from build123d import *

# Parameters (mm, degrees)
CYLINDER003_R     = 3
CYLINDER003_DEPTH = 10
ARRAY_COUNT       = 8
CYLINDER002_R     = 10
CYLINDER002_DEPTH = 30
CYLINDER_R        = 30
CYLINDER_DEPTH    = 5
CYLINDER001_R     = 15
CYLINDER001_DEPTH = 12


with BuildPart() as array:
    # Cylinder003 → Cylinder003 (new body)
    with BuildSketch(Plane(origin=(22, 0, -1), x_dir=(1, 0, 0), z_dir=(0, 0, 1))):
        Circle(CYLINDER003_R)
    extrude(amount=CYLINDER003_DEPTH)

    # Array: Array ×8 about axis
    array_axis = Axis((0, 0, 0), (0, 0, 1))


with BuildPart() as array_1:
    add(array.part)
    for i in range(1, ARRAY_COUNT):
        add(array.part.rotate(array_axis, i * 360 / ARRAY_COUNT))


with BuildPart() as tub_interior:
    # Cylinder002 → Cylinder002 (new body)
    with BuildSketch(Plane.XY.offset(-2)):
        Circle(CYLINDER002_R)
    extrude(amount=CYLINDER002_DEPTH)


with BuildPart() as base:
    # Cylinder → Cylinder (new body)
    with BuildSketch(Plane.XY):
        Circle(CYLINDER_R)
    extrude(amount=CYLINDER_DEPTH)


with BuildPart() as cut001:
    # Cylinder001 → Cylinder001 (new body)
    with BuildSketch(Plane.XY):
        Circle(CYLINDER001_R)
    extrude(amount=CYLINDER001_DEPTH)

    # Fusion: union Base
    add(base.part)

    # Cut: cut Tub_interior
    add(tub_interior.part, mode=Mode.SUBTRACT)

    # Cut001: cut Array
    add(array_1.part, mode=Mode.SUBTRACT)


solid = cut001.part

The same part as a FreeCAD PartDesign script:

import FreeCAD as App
import Part
import Sketcher
from FreeCAD import Vector

doc = App.newDocument("Part")
body = doc.addObject("PartDesign::Body", "Body")

# Sketch on XY plane
sketch1 = body.newObject("Sketcher::SketchObject", "Sketch")
sketch1.AttachmentSupport = (doc.getObject("XY_Plane"), [""])
sketch1.MapMode = "FlatFace"
sketch1.AttachmentOffset = App.Placement(Vector(0, 0, -1), App.Rotation())
sketch1.addGeometry(Part.Circle(Vector(22, 0, 0), Vector(0, 0, 1), 3), False)
sketch1.addConstraint([
    Sketcher.Constraint("PointOnObject", 0, 3, -1),
    Sketcher.Constraint("Diameter", 0, 6.0),
    Sketcher.Constraint("DistanceX", -1, 1, 0, 3, 22.0),
])
pad1 = body.newObject("PartDesign::Pad", "Pad")
pad1.Profile = sketch1
pad1.Length = 10
body2 = doc.addObject("PartDesign::Body", "Body001")
body2.AllowCompound = True
doc.recompute()

body2.BaseFeature = body
doc.recompute()

body3 = doc.addObject("PartDesign::Body", "Body002")
body3.BaseFeature = body
body3.Placement = App.Placement(Vector(0, 0, 0), App.Rotation(Vector(0, 0, 1), 45))
boolean = body2.newObject("PartDesign::Boolean", "Boolean")
boolean.Type = "Fuse"
boolean.addObjects([body3])
doc.recompute()

body4 = doc.addObject("PartDesign::Body", "Body003")
body4.BaseFeature = body
body4.Placement = App.Placement(Vector(0, 0, 0), App.Rotation(Vector(0, 0, 1), 90))
boolean2 = body2.newObject("PartDesign::Boolean", "Boolean001")
boolean2.Type = "Fuse"
boolean2.addObjects([body4])
doc.recompute()

body5 = doc.addObject("PartDesign::Body", "Body004")
body5.BaseFeature = body
body5.Placement = App.Placement(Vector(0, 0, 0), App.Rotation(Vector(0, 0, 1), 135))
boolean3 = body2.newObject("PartDesign::Boolean", "Boolean002")
boolean3.Type = "Fuse"
boolean3.addObjects([body5])
doc.recompute()

body6 = doc.addObject("PartDesign::Body", "Body005")
body6.BaseFeature = body
body6.Placement = App.Placement(Vector(0, 0, 0), App.Rotation(Vector(0, 0, 1), 180))
boolean4 = body2.newObject("PartDesign::Boolean", "Boolean003")
boolean4.Type = "Fuse"
boolean4.addObjects([body6])
doc.recompute()

body7 = doc.addObject("PartDesign::Body", "Body006")
body7.BaseFeature = body
body7.Placement = App.Placement(Vector(0, 0, 0), App.Rotation(Vector(0, 0, 1), 225))
boolean5 = body2.newObject("PartDesign::Boolean", "Boolean004")
boolean5.Type = "Fuse"
boolean5.addObjects([body7])
doc.recompute()

body8 = doc.addObject("PartDesign::Body", "Body007")
body8.BaseFeature = body
body8.Placement = App.Placement(Vector(0, 0, 0), App.Rotation(Vector(0, 0, 1), 270))
boolean6 = body2.newObject("PartDesign::Boolean", "Boolean005")
boolean6.Type = "Fuse"
boolean6.addObjects([body8])
doc.recompute()

body.Placement = App.Placement(Vector(0, 0, 0), App.Rotation(Vector(0, 0, 1), 315))
boolean7 = body2.newObject("PartDesign::Boolean", "Boolean006")
boolean7.Type = "Fuse"
boolean7.addObjects([body])
body9 = doc.addObject("PartDesign::Body", "Body008")

# Sketch on XY plane
sketch2 = body9.newObject("Sketcher::SketchObject", "Sketch001")
sketch2.AttachmentSupport = (doc.getObject("XY_Plane008"), [""])
sketch2.MapMode = "FlatFace"
sketch2.AttachmentOffset = App.Placement(Vector(0, 0, -2), App.Rotation())
sketch2.addGeometry(Part.Circle(Vector(0, 0, 0), Vector(0, 0, 1), 10), False)
sketch2.addConstraint([
    Sketcher.Constraint("Coincident", 0, 3, -1, 1),
    Sketcher.Constraint("Diameter", 0, 20.0),
])
pad2 = body9.newObject("PartDesign::Pad", "Pad001")
pad2.Profile = sketch2
pad2.Length = 30
body10 = doc.addObject("PartDesign::Body", "Body009")

# Sketch on XY plane
sketch3 = body10.newObject("Sketcher::SketchObject", "Sketch002")
sketch3.AttachmentSupport = (doc.getObject("XY_Plane009"), [""])
sketch3.MapMode = "FlatFace"
sketch3.addGeometry(Part.Circle(Vector(0, 0, 0), Vector(0, 0, 1), 30), False)
sketch3.addConstraint([
    Sketcher.Constraint("Coincident", 0, 3, -1, 1),
    Sketcher.Constraint("Diameter", 0, 60.0),
])
pad3 = body10.newObject("PartDesign::Pad", "Pad002")
pad3.Profile = sketch3
pad3.Length = 5
body11 = doc.addObject("PartDesign::Body", "Body010")

# Sketch on XY plane
sketch4 = body11.newObject("Sketcher::SketchObject", "Sketch003")
sketch4.AttachmentSupport = (doc.getObject("XY_Plane010"), [""])
sketch4.MapMode = "FlatFace"
sketch4.addGeometry(Part.Circle(Vector(0, 0, 0), Vector(0, 0, 1), 15), False)
sketch4.addConstraint([
    Sketcher.Constraint("Coincident", 0, 3, -1, 1),
    Sketcher.Constraint("Diameter", 0, 30.0),
])
pad4 = body11.newObject("PartDesign::Pad", "Pad003")
pad4.Profile = sketch4
pad4.Length = 12
doc.recompute()

boolean8 = body11.newObject("PartDesign::Boolean", "Boolean007")
boolean8.Type = "Fuse"
boolean8.addObjects([body10])
doc.recompute()

boolean9 = body11.newObject("PartDesign::Boolean", "Boolean008")
boolean9.Type = "Cut"
boolean9.addObjects([body9])
doc.recompute()

boolean10 = body11.newObject("PartDesign::Boolean", "Boolean009")
boolean10.Type = "Cut"
boolean10.addObjects([body2])

doc.recompute()
